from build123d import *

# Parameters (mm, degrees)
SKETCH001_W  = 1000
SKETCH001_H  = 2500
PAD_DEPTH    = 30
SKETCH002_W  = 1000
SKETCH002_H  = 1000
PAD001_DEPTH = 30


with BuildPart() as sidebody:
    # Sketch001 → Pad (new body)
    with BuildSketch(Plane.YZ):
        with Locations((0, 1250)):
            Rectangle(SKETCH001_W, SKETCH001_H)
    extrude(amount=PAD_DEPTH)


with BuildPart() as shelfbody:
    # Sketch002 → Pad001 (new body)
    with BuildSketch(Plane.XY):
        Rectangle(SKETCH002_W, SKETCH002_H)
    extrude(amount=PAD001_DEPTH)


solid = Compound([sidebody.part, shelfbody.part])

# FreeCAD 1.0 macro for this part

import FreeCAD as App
import Part
import Sketcher

V = App.Vector
Q = App.Units.Quantity


def add_polygon(sketch, points):
    """Adds a closed chain of lines whose ends are joined by coincident constraints."""
    first, n = sketch.GeometryCount, len(points)
    for a, b in zip(points, points[1:] + points[:1]):
        sketch.addGeometry(Part.LineSegment(App.Vector(*a, 0), App.Vector(*b, 0)), False)
    for i in range(n):
        sketch.addConstraint(Sketcher.Constraint("Coincident", first + i, 2, first + (i + 1) % n, 1))

doc = App.newDocument("Part")
body = doc.addObject("PartDesign::Body", "Body")

sketch1 = body.newObject("Sketcher::SketchObject", "Sketch")
sketch1.AttachmentSupport = (doc.getObject("YZ_Plane"), [""])
sketch1.MapMode = "FlatFace"
add_polygon(sketch1, [(-500, 2500), (-500, 0), (500, 0), (500, 2500)])
sketch1.addConstraint(Sketcher.Constraint("Vertical", 0))
sketch1.addConstraint(Sketcher.Constraint("Horizontal", 1))
sketch1.addConstraint(Sketcher.Constraint("Vertical", 2))
sketch1.addConstraint(Sketcher.Constraint("Horizontal", 3))
sketch1.addConstraint(Sketcher.Constraint("Symmetric", 0, 2, 1, 2, -1, 1))
sketch1.addConstraint(Sketcher.Constraint("DistanceX", 1, 1, 1, 2, Q("1000 mm")))
sketch1.addConstraint(Sketcher.Constraint("DistanceY", 0, 2, 0, 1, Q("2500 mm")))
pad1 = body.newObject("PartDesign::Pad", "Pad")
pad1.Profile = sketch1
pad1.Length = 30
body2 = doc.addObject("PartDesign::Body", "Body001")

sketch2 = body2.newObject("Sketcher::SketchObject", "Sketch001")
sketch2.AttachmentSupport = (doc.getObject("XY_Plane001"), [""])
sketch2.MapMode = "FlatFace"
add_polygon(sketch2, [(-500, 500), (-500, -500), (500, -500), (500, 500)])
sketch2.addConstraint(Sketcher.Constraint("Vertical", 0))
sketch2.addConstraint(Sketcher.Constraint("Horizontal", 1))
sketch2.addConstraint(Sketcher.Constraint("Vertical", 2))
sketch2.addConstraint(Sketcher.Constraint("Horizontal", 3))
sketch2.addConstraint(Sketcher.Constraint("Symmetric", 0, 2, 2, 2, -1, 1))
sketch2.addConstraint(Sketcher.Constraint("Equal", 3, 0))
sketch2.addConstraint(Sketcher.Constraint("DistanceX", 1, 1, 1, 2, Q("1000 mm")))
pad2 = body2.newObject("PartDesign::Pad", "Pad001")
pad2.Profile = sketch2
pad2.Length = 30

doc.recompute()
